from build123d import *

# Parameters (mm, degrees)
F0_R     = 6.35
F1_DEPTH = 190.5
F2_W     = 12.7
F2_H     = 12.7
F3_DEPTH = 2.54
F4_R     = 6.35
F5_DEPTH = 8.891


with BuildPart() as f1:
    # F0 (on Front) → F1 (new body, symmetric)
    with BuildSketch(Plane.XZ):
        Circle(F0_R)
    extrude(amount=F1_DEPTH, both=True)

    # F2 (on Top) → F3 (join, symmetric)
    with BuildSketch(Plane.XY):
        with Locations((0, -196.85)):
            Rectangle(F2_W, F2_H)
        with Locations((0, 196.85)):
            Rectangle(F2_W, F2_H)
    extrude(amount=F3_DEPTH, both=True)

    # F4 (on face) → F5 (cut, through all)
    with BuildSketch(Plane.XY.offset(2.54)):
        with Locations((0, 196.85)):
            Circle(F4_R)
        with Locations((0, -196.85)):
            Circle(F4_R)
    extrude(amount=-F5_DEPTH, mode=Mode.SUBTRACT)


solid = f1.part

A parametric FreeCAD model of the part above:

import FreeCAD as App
import Part
import Sketcher
Q = App.Units.Quantity

doc = App.newDocument("Part")
body = doc.addObject("PartDesign::Body", "Body")
body.AllowCompound = True

# Sketch on XZ plane
sketch1 = body.newObject("Sketcher::SketchObject", "Sketch")
sketch1.AttachmentSupport = (doc.getObject("XZ_Plane"), [""])
sketch1.MapMode = "FlatFace"
sketch1.addGeometry(Part.Circle(App.Vector(0, 0, 0), App.Vector(0, 0, 1), 6), False)
sketch1.addConstraint(Sketcher.Constraint("Coincident", 0, 3, -1, 1))
sketch1.addConstraint(Sketcher.Constraint("Diameter", 0, Q("0.5 in")))
pad1 = body.newObject("PartDesign::Pad", "Pad")
pad1.Profile = sketch1
pad1.Length = Q("15 in")
pad1.Midplane = True

# Sketch on XY plane
sketch2 = body.newObject("Sketcher::SketchObject", "Sketch001")
sketch2.AttachmentSupport = (doc.getObject("XY_Plane"), [""])
sketch2.MapMode = "FlatFace"
sketch2.addGeometry(Part.LineSegment(App.Vector(-6, -190, 0), App.Vector(-6, -203, 0)), False)
sketch2.addGeometry(Part.LineSegment(App.Vector(-6, -203, 0), App.Vector(6, -203, 0)), False)
sketch2.addGeometry(Part.LineSegment(App.Vector(6, -203, 0), App.Vector(6, -190, 0)), False)
sketch2.addGeometry(Part.LineSegment(App.Vector(6, -190, 0), App.Vector(-6, -190, 0)), False)
sketch2.addGeometry(Part.LineSegment(App.Vector(-6, 203, 0), App.Vector(-6, 190, 0)), False)
sketch2.addGeometry(Part.LineSegment(App.Vector(-6, 190, 0), App.Vector(6, 190, 0)), False)
sketch2.addGeometry(Part.LineSegment(App.Vector(6, 190, 0), App.Vector(6, 203, 0)), False)
sketch2.addGeometry(Part.LineSegment(App.Vector(6, 203, 0), App.Vector(-6, 203, 0)), False)
sketch2.addConstraint(Sketcher.Constraint("Coincident", 0, 2, 1, 1))
sketch2.addConstraint(Sketcher.Constraint("Coincident", 1, 2, 2, 1))
sketch2.addConstraint(Sketcher.Constraint("Coincident", 2, 2, 3, 1))
sketch2.addConstraint(Sketcher.Constraint("Coincident", 3, 2, 0, 1))
sketch2.addConstraint(Sketcher.Constraint("Coincident", 4, 2, 5, 1))
sketch2.addConstraint(Sketcher.Constraint("Coincident", 5, 2, 6, 1))
sketch2.addConstraint(Sketcher.Constraint("Coincident", 6, 2, 7, 1))
sketch2.addConstraint(Sketcher.Constraint("Coincident", 7, 2, 4, 1))
sketch2.addConstraint(Sketcher.Constraint("Vertical", 0))
sketch2.addConstraint(Sketcher.Constraint("Horizontal", 1))
sketch2.addConstraint(Sketcher.Constraint("Vertical", 2))
sketch2.addConstraint(Sketcher.Constraint("Horizontal", 3))
sketch2.addConstraint(Sketcher.Constraint("Vertical", 4))
sketch2.addConstraint(Sketcher.Constraint("Horizontal", 5))
sketch2.addConstraint(Sketcher.Constraint("Vertical", 6))
sketch2.addConstraint(Sketcher.Constraint("Horizontal", 7))
sketch2.addConstraint(Sketcher.Constraint("Symmetric", 2, 2, 4, 2, -1, 1))
sketch2.addConstraint(Sketcher.Constraint("Symmetric", 0, 2, 6, 2, -1, 1))
sketch2.addConstraint(Sketcher.Constraint("Vertical", 3, 2, 4, 2))
sketch2.addConstraint(Sketcher.Constraint("Equal", 7, 0))
sketch2.addConstraint(Sketcher.Constraint("DistanceX", 1, 1, 1, 2, Q("0.5 in")))
sketch2.addConstraint(Sketcher.Constraint("DistanceY", 0, 2, -1, 1, Q("8 in")))
pad2 = body.newObject("PartDesign::Pad", "Pad001")
pad2.Profile = sketch2
pad2.Length = Q("0.2 in")
pad2.Midplane = True

# Sketch on XY plane
sketch3 = body.newObject("Sketcher::SketchObject", "Sketch002")
sketch3.AttachmentSupport = (doc.getObject("XY_Plane"), [""])
sketch3.MapMode = "FlatFace"
sketch3.AttachmentOffset = App.Placement(App.Vector(0, 0, 0.1 * 25.4), App.Rotation())
sketch3.addGeometry(Part.Circle(App.Vector(0, 197, 0), App.Vector(0, 0, 1), 6), False)
sketch3.addGeometry(Part.Circle(App.Vector(0, -197, 0), App.Vector(0, 0, 1), 6), False)
sketch3.addConstraint(Sketcher.Constraint("Equal", 0, 1))
sketch3.addConstraint(Sketcher.Constraint("Symmetric", 0, 3, 1, 3, -1, 1))
sketch3.addConstraint(Sketcher.Constraint("PointOnObject", 0, 3, -2))
sketch3.addConstraint(Sketcher.Constraint("Diameter", 0, Q("0.5 in")))
sketch3.addConstraint(Sketcher.Constraint("DistanceY", 1, 3, 0, 3, Q("15.5 in")))
pocket1 = body.newObject("PartDesign::Pocket", "Pocket")
pocket1.Profile = sketch3
pocket1.Type = "ThroughAll"

doc.recompute()
